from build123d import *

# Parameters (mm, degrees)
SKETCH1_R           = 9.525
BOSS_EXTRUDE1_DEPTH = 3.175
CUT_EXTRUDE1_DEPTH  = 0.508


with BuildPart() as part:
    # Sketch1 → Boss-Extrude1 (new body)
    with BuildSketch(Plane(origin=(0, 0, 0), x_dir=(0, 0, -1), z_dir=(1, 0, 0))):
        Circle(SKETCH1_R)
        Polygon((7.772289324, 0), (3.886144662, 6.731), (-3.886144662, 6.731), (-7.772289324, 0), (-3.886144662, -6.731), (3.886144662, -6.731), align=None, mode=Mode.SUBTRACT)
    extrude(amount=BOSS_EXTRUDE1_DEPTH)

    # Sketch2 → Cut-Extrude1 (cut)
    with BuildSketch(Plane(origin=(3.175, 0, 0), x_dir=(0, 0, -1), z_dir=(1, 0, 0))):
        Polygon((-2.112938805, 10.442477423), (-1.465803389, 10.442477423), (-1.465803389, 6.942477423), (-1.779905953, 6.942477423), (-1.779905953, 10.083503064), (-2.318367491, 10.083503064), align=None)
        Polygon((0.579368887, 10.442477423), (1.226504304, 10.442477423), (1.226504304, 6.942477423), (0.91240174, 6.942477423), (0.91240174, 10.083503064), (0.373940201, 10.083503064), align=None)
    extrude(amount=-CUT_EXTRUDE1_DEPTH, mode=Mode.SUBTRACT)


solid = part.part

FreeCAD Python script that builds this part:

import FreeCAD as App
import Part
import Sketcher
Q = App.Units.Quantity


def add_polygon(sketch, points):
    """Adds a closed chain of lines whose ends are joined by coincident constraints."""
    first, n = sketch.GeometryCount, len(points)
    for a, b in zip(points, points[1:] + points[:1]):
        sketch.addGeometry(Part.LineSegment(App.Vector(*a, 0), App.Vector(*b, 0)), False)
    for i in range(n):
        sketch.addConstraint(Sketcher.Constraint("Coincident", first + i, 2, first + (i + 1) % n, 1))

doc = App.newDocument("Part")
body = doc.addObject("PartDesign::Body", "Body")

# Sketch on YZ plane
sketch1 = body.newObject("Sketcher::SketchObject", "Sketch")
sketch1.AttachmentSupport = (doc.getObject("YZ_Plane"), [""])
sketch1.MapMode = "FlatFace"
sketch1.addGeometry(Part.Circle(App.Vector(0, 0, 0), App.Vector(0, 0, 1), 10), False)  # 0
add_polygon(sketch1, [(7, -4), (0, -8), (-7, -4), (-7, 4), (0, 8), (7, 4)])  # lines 1-6
sketch1.addConstraint([
    Sketcher.Constraint("Vertical", 3),
    Sketcher.Constraint("Vertical", 6),
    Sketcher.Constraint("Coincident", 0, 3, -1, 1),
    Sketcher.Constraint("Symmetric", 1, 2, 4, 2, -1, 1),
    Sketcher.Constraint("Symmetric", 2, 2, 5, 2, -1, 1),
    Sketcher.Constraint("PointOnObject", 1, 2, -2),
    Sketcher.Constraint("Parallel", 1, 4),
    Sketcher.Constraint("Horizontal", 3, 2, 5, 2),
    Sketcher.Constraint("Diameter", 0, Q("0.75 in")),
    Sketcher.Constraint("Angle", 1, Q("-150 deg")),
    Sketcher.Constraint("DistanceX", 3, 2, 5, 2, Q("0.53 in")),
    Sketcher.Constraint("DistanceY", 3, 1, 3, 2, Q("7.772289 mm")),
])
pad1 = body.newObject("PartDesign::Pad", "Pad")
pad1.Profile = sketch1
pad1.Length = Q("0.125 in")

# Sketch on YZ plane
sketch2 = body.newObject("Sketcher::SketchObject", "Sketch001")
sketch2.AttachmentSupport = (doc.getObject("YZ_Plane"), [""])
sketch2.MapMode = "FlatFace"
sketch2.AttachmentOffset = App.Placement(App.Vector(0, 0, 0.125 * 25.4), App.Rotation())
add_polygon(sketch2, [(10.44, 1.47), (10.44, 2.11), (10.08, 2.32), (10.08, 1.78), (6.94, 1.78), (6.94, 1.47)])  # lines 0-5
add_polygon(sketch2, [(10.44, -1.23), (10.44, -0.58), (10.08, -0.37), (10.08, -0.91), (6.94, -0.91), (6.94, -1.23)])  # lines 6-11
sketch2.addConstraint([
    Sketcher.Constraint("Vertical", 0),
    Sketcher.Constraint("Vertical", 2),
    Sketcher.Constraint("Horizontal", 3),
    Sketcher.Constraint("Vertical", 4),
    Sketcher.Constraint("Horizontal", 5),
    Sketcher.Constraint("Vertical", 6),
    Sketcher.Constraint("Vertical", 8),
    Sketcher.Constraint("Horizontal", 9),
    Sketcher.Constraint("Vertical", 10),
    Sketcher.Constraint("Horizontal", 11),
    Sketcher.Constraint("Parallel", 1, 7),
    Sketcher.Constraint("Vertical", 5, 2, 6, 2),
    Sketcher.Constraint("Vertical", 2, 2, 7, 2),
    Sketcher.Constraint("Vertical", 4, 2, 9, 2),
    Sketcher.Constraint("Equal", 0, 6),
    Sketcher.Constraint("Equal", 2, 8),
    Sketcher.Constraint("DistanceX", 5, 1, 5, 2, Q("3.5 mm")),
    Sketcher.Constraint("Distance", 1, Q("0.413598 mm")),
    Sketcher.Constraint("DistanceY", 2, 2, 2, 1, Q("0.538462 mm")),
    Sketcher.Constraint("DistanceY", 8, 2, -1, 1, Q("0.912402 mm")),
    Sketcher.Constraint("DistanceX", 3, 2, 3, 1, Q("3.141026 mm")),
    Sketcher.Constraint("DistanceY", 0, 1, 0, 2, Q("0.647135 mm")),
    Sketcher.Constraint("DistanceY", -1, 1, 0, 2, Q("2.112939 mm")),
    Sketcher.Constraint("DistanceX", -1, 1, 0, 2, Q("10.442477 mm")),
])
pocket1 = body.newObject("PartDesign::Pocket", "Pocket")
pocket1.Profile = sketch2
pocket1.Length = Q("0.02 in")

doc.recompute()
